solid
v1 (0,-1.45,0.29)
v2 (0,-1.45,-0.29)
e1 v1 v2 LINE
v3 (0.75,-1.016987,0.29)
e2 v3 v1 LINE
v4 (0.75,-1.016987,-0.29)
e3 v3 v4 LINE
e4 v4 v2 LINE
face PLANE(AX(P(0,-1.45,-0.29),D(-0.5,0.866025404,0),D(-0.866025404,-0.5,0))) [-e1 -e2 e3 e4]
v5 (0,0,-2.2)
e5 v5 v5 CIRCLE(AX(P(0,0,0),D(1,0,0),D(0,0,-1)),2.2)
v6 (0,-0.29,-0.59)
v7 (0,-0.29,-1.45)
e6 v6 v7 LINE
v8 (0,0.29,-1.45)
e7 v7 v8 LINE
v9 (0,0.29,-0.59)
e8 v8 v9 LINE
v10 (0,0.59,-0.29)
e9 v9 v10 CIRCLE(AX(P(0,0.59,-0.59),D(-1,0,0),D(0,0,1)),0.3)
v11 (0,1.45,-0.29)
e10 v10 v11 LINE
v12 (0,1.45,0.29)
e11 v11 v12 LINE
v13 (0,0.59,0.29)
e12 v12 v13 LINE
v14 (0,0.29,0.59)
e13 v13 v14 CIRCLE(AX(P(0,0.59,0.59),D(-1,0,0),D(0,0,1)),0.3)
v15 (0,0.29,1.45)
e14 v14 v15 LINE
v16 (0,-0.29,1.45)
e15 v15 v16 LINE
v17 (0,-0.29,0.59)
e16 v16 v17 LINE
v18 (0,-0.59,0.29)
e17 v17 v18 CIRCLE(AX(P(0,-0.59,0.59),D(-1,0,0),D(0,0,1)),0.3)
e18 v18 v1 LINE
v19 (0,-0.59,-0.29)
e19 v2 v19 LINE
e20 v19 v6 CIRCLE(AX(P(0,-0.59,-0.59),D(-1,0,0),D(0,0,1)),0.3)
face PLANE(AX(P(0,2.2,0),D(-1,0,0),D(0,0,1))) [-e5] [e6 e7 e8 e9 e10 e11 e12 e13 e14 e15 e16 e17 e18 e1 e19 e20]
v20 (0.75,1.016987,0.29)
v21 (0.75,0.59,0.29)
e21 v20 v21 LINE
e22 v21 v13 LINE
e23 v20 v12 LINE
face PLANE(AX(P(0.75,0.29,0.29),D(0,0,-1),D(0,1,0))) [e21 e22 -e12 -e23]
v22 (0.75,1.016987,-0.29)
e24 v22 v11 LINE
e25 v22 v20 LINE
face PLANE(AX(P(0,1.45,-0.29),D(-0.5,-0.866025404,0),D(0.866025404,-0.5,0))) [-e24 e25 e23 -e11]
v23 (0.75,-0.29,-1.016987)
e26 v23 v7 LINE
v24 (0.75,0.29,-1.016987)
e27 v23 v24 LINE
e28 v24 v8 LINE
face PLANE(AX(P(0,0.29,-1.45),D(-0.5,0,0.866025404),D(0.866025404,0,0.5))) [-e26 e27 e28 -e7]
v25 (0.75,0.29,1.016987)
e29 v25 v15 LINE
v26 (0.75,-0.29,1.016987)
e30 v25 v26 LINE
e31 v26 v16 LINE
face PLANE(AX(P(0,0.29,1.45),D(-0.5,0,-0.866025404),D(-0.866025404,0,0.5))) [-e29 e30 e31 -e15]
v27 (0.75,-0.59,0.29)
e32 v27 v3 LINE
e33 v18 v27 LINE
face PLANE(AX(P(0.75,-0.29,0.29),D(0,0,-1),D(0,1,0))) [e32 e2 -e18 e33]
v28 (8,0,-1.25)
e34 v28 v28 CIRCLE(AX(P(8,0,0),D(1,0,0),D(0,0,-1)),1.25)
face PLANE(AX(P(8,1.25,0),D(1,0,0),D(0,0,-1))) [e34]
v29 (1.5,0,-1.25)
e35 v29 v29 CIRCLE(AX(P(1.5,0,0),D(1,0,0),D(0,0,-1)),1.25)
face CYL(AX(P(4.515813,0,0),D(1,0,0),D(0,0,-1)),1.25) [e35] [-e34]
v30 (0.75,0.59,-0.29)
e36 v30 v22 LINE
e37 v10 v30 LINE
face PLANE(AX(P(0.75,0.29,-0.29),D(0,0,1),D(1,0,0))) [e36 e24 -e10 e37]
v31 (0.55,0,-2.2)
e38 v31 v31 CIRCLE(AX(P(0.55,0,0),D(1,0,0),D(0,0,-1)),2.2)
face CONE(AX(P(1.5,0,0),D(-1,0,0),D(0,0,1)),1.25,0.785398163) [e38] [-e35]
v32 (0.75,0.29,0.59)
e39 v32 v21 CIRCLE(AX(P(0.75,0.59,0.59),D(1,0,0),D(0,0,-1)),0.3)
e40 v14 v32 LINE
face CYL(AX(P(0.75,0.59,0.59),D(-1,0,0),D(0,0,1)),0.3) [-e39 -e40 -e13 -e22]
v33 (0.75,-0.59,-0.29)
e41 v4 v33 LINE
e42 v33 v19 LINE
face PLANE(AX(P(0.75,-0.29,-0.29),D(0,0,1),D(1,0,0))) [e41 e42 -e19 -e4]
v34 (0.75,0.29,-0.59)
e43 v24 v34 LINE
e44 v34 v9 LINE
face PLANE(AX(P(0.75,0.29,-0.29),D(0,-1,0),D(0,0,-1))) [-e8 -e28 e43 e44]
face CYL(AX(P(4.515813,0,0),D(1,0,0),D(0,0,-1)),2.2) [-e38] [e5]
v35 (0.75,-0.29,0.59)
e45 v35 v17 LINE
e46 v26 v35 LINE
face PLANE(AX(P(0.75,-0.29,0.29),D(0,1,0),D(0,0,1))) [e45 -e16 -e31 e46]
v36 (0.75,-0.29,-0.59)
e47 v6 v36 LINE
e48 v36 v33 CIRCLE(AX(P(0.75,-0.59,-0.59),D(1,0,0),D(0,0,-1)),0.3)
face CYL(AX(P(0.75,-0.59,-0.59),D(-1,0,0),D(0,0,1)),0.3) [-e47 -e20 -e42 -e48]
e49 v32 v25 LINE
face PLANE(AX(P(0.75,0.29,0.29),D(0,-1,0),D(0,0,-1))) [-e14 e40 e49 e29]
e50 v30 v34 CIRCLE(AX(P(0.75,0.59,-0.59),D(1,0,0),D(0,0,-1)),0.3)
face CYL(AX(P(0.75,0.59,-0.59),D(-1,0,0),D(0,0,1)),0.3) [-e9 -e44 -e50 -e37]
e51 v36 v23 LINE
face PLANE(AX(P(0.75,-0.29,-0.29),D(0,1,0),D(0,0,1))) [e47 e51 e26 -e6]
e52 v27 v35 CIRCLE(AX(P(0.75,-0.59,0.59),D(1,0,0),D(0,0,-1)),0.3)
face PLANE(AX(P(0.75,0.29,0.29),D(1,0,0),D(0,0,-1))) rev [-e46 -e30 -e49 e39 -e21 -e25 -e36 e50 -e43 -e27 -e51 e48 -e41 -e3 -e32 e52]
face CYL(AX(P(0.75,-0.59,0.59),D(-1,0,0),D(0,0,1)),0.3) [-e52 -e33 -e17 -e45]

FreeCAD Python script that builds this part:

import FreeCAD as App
import Part
import Sketcher
from FreeCAD import Vector
Q = App.Units.Quantity


def edges_at(feature, points):
    """Names of the edges that pass closest to the given points."""
    edges = feature.Shape.Edges
    near = lambda p: min(range(len(edges)), key=lambda i: edges[i].distToShape(Part.Vertex(*p))[0])
    return sorted({f"Edge{near(p) + 1}" for p in points})


def faces_at(feature, points):
    """Names of the faces that lie closest to the given points."""
    faces = feature.Shape.Faces
    near = lambda p: min(range(len(faces)), key=lambda i: faces[i].distToShape(Part.Vertex(*p))[0])
    return sorted({f"Face{near(p) + 1}" for p in points})

doc = App.newDocument("Part")
params = doc.addObject("Spreadsheet::Sheet", "Params")
for row, (alias, value) in enumerate([
    ("sketch1_width", "8 mm"),
    ("sketch1_width2", "6.5 mm"),
    ("sketch1_height", "2.2 mm"),
    ("sketch1_width3", "0.55 mm"),
    ("revolution_angle", "360 deg"),
    ("sketch2_width", "1.16 mm"),
    ("sketch2_width2", "0.58 mm"),
    ("pocket1_length", "0.75 mm"),
    ("draft_angle", "30 deg"),
    ("fillet_radius", "0.3 mm"),
], start=1):
    params.set(f"A{row}", alias)
    params.set(f"B{row}", "=" + value)
    params.setAlias(f"B{row}", alias)

body = doc.addObject("PartDesign::Body", "Body")

# Sketch on XY plane
sketch1 = body.newObject("Sketcher::SketchObject", "Sketch")
sketch1.AttachmentSupport = (doc.getObject("XY_Plane"), [""])
sketch1.MapMode = "FlatFace"
sketch1.addGeometry([
    Part.LineSegment(Vector(8, 1.2, 0), Vector(1.5, 1.2, 0)),  # 0
    Part.LineSegment(Vector(1.5, 1.2, 0), Vector(0.6, 2.2, 0)),  # 1
    Part.LineSegment(Vector(0.6, 2.2, 0), Vector(0, 2.2, 0)),  # 2
    Part.LineSegment(Vector(0, 2.2, 0), Vector(0, 0, 0)),  # 3
    Part.LineSegment(Vector(0, 0, 0), Vector(8, 0, 0)),  # 4
    Part.LineSegment(Vector(8, 0, 0), Vector(8, 1.2, 0)),  # 5
], False)
sketch1.addConstraint([
    Sketcher.Constraint("Coincident", 0, 2, 1, 1),
    Sketcher.Constraint("Coincident", 1, 2, 2, 1),
    Sketcher.Constraint("Coincident", 2, 2, 3, 1),
    Sketcher.Constraint("Coincident", 3, 2, 4, 1),
    Sketcher.Constraint("Coincident", 4, 2, 5, 1),
    Sketcher.Constraint("Coincident", 5, 2, 0, 1),
    Sketcher.Constraint("Horizontal", 0),
    Sketcher.Constraint("Horizontal", 2),
    Sketcher.Constraint("Vertical", 3),
    Sketcher.Constraint("Horizontal", 4),
    Sketcher.Constraint("Vertical", 5),
    Sketcher.Constraint("Coincident", 3, 2, -1, 1),
    Sketcher.Constraint("DistanceX", 4, 1, 4, 2, Q("8 mm")),
    Sketcher.Constraint("Angle", 1, Q("135 deg")),
    Sketcher.Constraint("DistanceX", 0, 2, 0, 1, Q("6.5 mm")),
    Sketcher.Constraint("DistanceY", 3, 2, 3, 1, Q("2.2 mm")),
    Sketcher.Constraint("DistanceX", 2, 2, 2, 1, Q("0.55 mm")),
])
sketch1.setExpression("Constraints[12]", "Params.sketch1_width")
sketch1.setExpression("Constraints[14]", "Params.sketch1_width2")
sketch1.setExpression("Constraints[15]", "Params.sketch1_height")
sketch1.setExpression("Constraints[16]", "Params.sketch1_width3")
revolution = body.newObject("PartDesign::Revolution", "Revolution")
revolution.Profile = sketch1
revolution.ReferenceAxis = (sketch1, ["H_Axis"])
revolution.setExpression("Angle", "Params.revolution_angle")

# Sketch on YZ plane
sketch2 = body.newObject("Sketcher::SketchObject", "Sketch001")
sketch2.AttachmentSupport = (doc.getObject("YZ_Plane"), [""])
sketch2.MapMode = "FlatFace"
sketch2.addGeometry([
    Part.LineSegment(Vector(0.3, -0.3, 0), Vector(1.4, -0.3, 0)),  # 0
    Part.LineSegment(Vector(1.4, -0.3, 0), Vector(1.4, 0.3, 0)),  # 1
    Part.LineSegment(Vector(1.4, 0.3, 0), Vector(0.3, 0.3, 0)),  # 2
    Part.LineSegment(Vector(0.3, 0.3, 0), Vector(0.3, 1.4, 0)),  # 3
    Part.LineSegment(Vector(0.3, 1.4, 0), Vector(-0.3, 1.4, 0)),  # 4
    Part.LineSegment(Vector(-0.3, 1.4, 0), Vector(-0.3, 0.3, 0)),  # 5
    Part.LineSegment(Vector(-0.3, 0.3, 0), Vector(-1.4, 0.3, 0)),  # 6
    Part.LineSegment(Vector(-1.4, 0.3, 0), Vector(-1.4, -0.3, 0)),  # 7
    Part.LineSegment(Vector(-1.4, -0.3, 0), Vector(-0.3, -0.3, 0)),  # 8
    Part.LineSegment(Vector(-0.3, -0.3, 0), Vector(-0.3, -1.4, 0)),  # 9
    Part.LineSegment(Vector(-0.3, -1.4, 0), Vector(0.3, -1.4, 0)),  # 10
    Part.LineSegment(Vector(0.3, -1.4, 0), Vector(0.3, -0.3, 0)),  # 11
], False)
sketch2.addConstraint([
    Sketcher.Constraint("Coincident", 0, 2, 1, 1),
    Sketcher.Constraint("Coincident", 1, 2, 2, 1),
    Sketcher.Constraint("Coincident", 2, 2, 3, 1),
    Sketcher.Constraint("Coincident", 3, 2, 4, 1),
    Sketcher.Constraint("Coincident", 4, 2, 5, 1),
    Sketcher.Constraint("Coincident", 5, 2, 6, 1),
    Sketcher.Constraint("Coincident", 6, 2, 7, 1),
    Sketcher.Constraint("Coincident", 7, 2, 8, 1),
    Sketcher.Constraint("Coincident", 8, 2, 9, 1),
    Sketcher.Constraint("Coincident", 9, 2, 10, 1),
    Sketcher.Constraint("Coincident", 10, 2, 11, 1),
    Sketcher.Constraint("Coincident", 11, 2, 0, 1),
    Sketcher.Constraint("Horizontal", 0),
    Sketcher.Constraint("Vertical", 1),
    Sketcher.Constraint("Horizontal", 2),
    Sketcher.Constraint("Vertical", 3),
    Sketcher.Constraint("Horizontal", 4),
    Sketcher.Constraint("Vertical", 5),
    Sketcher.Constraint("Horizontal", 6),
    Sketcher.Constraint("Vertical", 7),
    Sketcher.Constraint("Horizontal", 8),
    Sketcher.Constraint("Vertical", 9),
    Sketcher.Constraint("Horizontal", 10),
    Sketcher.Constraint("Vertical", 11),
    Sketcher.Constraint("Symmetric", 0, 2, 6, 2, -1, 1),
    Sketcher.Constraint("Symmetric", 2, 2, 8, 2, -1, 1),
    Sketcher.Constraint("Symmetric", 4, 2, 10, 2, -1, 1),
    Sketcher.Constraint("Symmetric", 2, 2, 5, 2, -2),
    Sketcher.Constraint("Equal", 10, 1),
    Sketcher.Constraint("Equal", 8, 3),
    Sketcher.Constraint("DistanceX", 0, 1, 0, 2, Q("1.16 mm")),
    Sketcher.Constraint("DistanceX", 4, 2, 4, 1, Q("0.58 mm")),
])
sketch2.setExpression("Constraints[30]", "Params.sketch2_width")
sketch2.setExpression("Constraints[31]", "Params.sketch2_width2")
pocket1 = body.newObject("PartDesign::Pocket", "Pocket")
pocket1.Profile = sketch2
pocket1.setExpression("Length", "Params.pocket1_length")
pocket1.Reversed = True
doc.recompute()

draft = body.newObject("PartDesign::Draft", "Draft")
draft.Base = (pocket1, faces_at(pocket1, [
    (0.375, 1.45, 0),
    (0.375, 0, 1.45),
    (0.375, -1.45, 0),
    (0.375, 0, -1.45),
]))
draft.NeutralPlane = (doc.getObject("YZ_Plane"), [""])
draft.setExpression("Angle", "Params.draft_angle")
draft.Reversed = True
doc.recompute()

fillet = body.newObject("PartDesign::Fillet", "Fillet")
fillet.Base = (draft, edges_at(draft, [
    (0.375, 0.29, 0.29),
    (0.375, -0.29, 0.29),
    (0.375, -0.29, -0.29),
    (0.375, 0.29, -0.29),
]))
fillet.setExpression("Radius", "Params.fillet_radius")

doc.recompute()
